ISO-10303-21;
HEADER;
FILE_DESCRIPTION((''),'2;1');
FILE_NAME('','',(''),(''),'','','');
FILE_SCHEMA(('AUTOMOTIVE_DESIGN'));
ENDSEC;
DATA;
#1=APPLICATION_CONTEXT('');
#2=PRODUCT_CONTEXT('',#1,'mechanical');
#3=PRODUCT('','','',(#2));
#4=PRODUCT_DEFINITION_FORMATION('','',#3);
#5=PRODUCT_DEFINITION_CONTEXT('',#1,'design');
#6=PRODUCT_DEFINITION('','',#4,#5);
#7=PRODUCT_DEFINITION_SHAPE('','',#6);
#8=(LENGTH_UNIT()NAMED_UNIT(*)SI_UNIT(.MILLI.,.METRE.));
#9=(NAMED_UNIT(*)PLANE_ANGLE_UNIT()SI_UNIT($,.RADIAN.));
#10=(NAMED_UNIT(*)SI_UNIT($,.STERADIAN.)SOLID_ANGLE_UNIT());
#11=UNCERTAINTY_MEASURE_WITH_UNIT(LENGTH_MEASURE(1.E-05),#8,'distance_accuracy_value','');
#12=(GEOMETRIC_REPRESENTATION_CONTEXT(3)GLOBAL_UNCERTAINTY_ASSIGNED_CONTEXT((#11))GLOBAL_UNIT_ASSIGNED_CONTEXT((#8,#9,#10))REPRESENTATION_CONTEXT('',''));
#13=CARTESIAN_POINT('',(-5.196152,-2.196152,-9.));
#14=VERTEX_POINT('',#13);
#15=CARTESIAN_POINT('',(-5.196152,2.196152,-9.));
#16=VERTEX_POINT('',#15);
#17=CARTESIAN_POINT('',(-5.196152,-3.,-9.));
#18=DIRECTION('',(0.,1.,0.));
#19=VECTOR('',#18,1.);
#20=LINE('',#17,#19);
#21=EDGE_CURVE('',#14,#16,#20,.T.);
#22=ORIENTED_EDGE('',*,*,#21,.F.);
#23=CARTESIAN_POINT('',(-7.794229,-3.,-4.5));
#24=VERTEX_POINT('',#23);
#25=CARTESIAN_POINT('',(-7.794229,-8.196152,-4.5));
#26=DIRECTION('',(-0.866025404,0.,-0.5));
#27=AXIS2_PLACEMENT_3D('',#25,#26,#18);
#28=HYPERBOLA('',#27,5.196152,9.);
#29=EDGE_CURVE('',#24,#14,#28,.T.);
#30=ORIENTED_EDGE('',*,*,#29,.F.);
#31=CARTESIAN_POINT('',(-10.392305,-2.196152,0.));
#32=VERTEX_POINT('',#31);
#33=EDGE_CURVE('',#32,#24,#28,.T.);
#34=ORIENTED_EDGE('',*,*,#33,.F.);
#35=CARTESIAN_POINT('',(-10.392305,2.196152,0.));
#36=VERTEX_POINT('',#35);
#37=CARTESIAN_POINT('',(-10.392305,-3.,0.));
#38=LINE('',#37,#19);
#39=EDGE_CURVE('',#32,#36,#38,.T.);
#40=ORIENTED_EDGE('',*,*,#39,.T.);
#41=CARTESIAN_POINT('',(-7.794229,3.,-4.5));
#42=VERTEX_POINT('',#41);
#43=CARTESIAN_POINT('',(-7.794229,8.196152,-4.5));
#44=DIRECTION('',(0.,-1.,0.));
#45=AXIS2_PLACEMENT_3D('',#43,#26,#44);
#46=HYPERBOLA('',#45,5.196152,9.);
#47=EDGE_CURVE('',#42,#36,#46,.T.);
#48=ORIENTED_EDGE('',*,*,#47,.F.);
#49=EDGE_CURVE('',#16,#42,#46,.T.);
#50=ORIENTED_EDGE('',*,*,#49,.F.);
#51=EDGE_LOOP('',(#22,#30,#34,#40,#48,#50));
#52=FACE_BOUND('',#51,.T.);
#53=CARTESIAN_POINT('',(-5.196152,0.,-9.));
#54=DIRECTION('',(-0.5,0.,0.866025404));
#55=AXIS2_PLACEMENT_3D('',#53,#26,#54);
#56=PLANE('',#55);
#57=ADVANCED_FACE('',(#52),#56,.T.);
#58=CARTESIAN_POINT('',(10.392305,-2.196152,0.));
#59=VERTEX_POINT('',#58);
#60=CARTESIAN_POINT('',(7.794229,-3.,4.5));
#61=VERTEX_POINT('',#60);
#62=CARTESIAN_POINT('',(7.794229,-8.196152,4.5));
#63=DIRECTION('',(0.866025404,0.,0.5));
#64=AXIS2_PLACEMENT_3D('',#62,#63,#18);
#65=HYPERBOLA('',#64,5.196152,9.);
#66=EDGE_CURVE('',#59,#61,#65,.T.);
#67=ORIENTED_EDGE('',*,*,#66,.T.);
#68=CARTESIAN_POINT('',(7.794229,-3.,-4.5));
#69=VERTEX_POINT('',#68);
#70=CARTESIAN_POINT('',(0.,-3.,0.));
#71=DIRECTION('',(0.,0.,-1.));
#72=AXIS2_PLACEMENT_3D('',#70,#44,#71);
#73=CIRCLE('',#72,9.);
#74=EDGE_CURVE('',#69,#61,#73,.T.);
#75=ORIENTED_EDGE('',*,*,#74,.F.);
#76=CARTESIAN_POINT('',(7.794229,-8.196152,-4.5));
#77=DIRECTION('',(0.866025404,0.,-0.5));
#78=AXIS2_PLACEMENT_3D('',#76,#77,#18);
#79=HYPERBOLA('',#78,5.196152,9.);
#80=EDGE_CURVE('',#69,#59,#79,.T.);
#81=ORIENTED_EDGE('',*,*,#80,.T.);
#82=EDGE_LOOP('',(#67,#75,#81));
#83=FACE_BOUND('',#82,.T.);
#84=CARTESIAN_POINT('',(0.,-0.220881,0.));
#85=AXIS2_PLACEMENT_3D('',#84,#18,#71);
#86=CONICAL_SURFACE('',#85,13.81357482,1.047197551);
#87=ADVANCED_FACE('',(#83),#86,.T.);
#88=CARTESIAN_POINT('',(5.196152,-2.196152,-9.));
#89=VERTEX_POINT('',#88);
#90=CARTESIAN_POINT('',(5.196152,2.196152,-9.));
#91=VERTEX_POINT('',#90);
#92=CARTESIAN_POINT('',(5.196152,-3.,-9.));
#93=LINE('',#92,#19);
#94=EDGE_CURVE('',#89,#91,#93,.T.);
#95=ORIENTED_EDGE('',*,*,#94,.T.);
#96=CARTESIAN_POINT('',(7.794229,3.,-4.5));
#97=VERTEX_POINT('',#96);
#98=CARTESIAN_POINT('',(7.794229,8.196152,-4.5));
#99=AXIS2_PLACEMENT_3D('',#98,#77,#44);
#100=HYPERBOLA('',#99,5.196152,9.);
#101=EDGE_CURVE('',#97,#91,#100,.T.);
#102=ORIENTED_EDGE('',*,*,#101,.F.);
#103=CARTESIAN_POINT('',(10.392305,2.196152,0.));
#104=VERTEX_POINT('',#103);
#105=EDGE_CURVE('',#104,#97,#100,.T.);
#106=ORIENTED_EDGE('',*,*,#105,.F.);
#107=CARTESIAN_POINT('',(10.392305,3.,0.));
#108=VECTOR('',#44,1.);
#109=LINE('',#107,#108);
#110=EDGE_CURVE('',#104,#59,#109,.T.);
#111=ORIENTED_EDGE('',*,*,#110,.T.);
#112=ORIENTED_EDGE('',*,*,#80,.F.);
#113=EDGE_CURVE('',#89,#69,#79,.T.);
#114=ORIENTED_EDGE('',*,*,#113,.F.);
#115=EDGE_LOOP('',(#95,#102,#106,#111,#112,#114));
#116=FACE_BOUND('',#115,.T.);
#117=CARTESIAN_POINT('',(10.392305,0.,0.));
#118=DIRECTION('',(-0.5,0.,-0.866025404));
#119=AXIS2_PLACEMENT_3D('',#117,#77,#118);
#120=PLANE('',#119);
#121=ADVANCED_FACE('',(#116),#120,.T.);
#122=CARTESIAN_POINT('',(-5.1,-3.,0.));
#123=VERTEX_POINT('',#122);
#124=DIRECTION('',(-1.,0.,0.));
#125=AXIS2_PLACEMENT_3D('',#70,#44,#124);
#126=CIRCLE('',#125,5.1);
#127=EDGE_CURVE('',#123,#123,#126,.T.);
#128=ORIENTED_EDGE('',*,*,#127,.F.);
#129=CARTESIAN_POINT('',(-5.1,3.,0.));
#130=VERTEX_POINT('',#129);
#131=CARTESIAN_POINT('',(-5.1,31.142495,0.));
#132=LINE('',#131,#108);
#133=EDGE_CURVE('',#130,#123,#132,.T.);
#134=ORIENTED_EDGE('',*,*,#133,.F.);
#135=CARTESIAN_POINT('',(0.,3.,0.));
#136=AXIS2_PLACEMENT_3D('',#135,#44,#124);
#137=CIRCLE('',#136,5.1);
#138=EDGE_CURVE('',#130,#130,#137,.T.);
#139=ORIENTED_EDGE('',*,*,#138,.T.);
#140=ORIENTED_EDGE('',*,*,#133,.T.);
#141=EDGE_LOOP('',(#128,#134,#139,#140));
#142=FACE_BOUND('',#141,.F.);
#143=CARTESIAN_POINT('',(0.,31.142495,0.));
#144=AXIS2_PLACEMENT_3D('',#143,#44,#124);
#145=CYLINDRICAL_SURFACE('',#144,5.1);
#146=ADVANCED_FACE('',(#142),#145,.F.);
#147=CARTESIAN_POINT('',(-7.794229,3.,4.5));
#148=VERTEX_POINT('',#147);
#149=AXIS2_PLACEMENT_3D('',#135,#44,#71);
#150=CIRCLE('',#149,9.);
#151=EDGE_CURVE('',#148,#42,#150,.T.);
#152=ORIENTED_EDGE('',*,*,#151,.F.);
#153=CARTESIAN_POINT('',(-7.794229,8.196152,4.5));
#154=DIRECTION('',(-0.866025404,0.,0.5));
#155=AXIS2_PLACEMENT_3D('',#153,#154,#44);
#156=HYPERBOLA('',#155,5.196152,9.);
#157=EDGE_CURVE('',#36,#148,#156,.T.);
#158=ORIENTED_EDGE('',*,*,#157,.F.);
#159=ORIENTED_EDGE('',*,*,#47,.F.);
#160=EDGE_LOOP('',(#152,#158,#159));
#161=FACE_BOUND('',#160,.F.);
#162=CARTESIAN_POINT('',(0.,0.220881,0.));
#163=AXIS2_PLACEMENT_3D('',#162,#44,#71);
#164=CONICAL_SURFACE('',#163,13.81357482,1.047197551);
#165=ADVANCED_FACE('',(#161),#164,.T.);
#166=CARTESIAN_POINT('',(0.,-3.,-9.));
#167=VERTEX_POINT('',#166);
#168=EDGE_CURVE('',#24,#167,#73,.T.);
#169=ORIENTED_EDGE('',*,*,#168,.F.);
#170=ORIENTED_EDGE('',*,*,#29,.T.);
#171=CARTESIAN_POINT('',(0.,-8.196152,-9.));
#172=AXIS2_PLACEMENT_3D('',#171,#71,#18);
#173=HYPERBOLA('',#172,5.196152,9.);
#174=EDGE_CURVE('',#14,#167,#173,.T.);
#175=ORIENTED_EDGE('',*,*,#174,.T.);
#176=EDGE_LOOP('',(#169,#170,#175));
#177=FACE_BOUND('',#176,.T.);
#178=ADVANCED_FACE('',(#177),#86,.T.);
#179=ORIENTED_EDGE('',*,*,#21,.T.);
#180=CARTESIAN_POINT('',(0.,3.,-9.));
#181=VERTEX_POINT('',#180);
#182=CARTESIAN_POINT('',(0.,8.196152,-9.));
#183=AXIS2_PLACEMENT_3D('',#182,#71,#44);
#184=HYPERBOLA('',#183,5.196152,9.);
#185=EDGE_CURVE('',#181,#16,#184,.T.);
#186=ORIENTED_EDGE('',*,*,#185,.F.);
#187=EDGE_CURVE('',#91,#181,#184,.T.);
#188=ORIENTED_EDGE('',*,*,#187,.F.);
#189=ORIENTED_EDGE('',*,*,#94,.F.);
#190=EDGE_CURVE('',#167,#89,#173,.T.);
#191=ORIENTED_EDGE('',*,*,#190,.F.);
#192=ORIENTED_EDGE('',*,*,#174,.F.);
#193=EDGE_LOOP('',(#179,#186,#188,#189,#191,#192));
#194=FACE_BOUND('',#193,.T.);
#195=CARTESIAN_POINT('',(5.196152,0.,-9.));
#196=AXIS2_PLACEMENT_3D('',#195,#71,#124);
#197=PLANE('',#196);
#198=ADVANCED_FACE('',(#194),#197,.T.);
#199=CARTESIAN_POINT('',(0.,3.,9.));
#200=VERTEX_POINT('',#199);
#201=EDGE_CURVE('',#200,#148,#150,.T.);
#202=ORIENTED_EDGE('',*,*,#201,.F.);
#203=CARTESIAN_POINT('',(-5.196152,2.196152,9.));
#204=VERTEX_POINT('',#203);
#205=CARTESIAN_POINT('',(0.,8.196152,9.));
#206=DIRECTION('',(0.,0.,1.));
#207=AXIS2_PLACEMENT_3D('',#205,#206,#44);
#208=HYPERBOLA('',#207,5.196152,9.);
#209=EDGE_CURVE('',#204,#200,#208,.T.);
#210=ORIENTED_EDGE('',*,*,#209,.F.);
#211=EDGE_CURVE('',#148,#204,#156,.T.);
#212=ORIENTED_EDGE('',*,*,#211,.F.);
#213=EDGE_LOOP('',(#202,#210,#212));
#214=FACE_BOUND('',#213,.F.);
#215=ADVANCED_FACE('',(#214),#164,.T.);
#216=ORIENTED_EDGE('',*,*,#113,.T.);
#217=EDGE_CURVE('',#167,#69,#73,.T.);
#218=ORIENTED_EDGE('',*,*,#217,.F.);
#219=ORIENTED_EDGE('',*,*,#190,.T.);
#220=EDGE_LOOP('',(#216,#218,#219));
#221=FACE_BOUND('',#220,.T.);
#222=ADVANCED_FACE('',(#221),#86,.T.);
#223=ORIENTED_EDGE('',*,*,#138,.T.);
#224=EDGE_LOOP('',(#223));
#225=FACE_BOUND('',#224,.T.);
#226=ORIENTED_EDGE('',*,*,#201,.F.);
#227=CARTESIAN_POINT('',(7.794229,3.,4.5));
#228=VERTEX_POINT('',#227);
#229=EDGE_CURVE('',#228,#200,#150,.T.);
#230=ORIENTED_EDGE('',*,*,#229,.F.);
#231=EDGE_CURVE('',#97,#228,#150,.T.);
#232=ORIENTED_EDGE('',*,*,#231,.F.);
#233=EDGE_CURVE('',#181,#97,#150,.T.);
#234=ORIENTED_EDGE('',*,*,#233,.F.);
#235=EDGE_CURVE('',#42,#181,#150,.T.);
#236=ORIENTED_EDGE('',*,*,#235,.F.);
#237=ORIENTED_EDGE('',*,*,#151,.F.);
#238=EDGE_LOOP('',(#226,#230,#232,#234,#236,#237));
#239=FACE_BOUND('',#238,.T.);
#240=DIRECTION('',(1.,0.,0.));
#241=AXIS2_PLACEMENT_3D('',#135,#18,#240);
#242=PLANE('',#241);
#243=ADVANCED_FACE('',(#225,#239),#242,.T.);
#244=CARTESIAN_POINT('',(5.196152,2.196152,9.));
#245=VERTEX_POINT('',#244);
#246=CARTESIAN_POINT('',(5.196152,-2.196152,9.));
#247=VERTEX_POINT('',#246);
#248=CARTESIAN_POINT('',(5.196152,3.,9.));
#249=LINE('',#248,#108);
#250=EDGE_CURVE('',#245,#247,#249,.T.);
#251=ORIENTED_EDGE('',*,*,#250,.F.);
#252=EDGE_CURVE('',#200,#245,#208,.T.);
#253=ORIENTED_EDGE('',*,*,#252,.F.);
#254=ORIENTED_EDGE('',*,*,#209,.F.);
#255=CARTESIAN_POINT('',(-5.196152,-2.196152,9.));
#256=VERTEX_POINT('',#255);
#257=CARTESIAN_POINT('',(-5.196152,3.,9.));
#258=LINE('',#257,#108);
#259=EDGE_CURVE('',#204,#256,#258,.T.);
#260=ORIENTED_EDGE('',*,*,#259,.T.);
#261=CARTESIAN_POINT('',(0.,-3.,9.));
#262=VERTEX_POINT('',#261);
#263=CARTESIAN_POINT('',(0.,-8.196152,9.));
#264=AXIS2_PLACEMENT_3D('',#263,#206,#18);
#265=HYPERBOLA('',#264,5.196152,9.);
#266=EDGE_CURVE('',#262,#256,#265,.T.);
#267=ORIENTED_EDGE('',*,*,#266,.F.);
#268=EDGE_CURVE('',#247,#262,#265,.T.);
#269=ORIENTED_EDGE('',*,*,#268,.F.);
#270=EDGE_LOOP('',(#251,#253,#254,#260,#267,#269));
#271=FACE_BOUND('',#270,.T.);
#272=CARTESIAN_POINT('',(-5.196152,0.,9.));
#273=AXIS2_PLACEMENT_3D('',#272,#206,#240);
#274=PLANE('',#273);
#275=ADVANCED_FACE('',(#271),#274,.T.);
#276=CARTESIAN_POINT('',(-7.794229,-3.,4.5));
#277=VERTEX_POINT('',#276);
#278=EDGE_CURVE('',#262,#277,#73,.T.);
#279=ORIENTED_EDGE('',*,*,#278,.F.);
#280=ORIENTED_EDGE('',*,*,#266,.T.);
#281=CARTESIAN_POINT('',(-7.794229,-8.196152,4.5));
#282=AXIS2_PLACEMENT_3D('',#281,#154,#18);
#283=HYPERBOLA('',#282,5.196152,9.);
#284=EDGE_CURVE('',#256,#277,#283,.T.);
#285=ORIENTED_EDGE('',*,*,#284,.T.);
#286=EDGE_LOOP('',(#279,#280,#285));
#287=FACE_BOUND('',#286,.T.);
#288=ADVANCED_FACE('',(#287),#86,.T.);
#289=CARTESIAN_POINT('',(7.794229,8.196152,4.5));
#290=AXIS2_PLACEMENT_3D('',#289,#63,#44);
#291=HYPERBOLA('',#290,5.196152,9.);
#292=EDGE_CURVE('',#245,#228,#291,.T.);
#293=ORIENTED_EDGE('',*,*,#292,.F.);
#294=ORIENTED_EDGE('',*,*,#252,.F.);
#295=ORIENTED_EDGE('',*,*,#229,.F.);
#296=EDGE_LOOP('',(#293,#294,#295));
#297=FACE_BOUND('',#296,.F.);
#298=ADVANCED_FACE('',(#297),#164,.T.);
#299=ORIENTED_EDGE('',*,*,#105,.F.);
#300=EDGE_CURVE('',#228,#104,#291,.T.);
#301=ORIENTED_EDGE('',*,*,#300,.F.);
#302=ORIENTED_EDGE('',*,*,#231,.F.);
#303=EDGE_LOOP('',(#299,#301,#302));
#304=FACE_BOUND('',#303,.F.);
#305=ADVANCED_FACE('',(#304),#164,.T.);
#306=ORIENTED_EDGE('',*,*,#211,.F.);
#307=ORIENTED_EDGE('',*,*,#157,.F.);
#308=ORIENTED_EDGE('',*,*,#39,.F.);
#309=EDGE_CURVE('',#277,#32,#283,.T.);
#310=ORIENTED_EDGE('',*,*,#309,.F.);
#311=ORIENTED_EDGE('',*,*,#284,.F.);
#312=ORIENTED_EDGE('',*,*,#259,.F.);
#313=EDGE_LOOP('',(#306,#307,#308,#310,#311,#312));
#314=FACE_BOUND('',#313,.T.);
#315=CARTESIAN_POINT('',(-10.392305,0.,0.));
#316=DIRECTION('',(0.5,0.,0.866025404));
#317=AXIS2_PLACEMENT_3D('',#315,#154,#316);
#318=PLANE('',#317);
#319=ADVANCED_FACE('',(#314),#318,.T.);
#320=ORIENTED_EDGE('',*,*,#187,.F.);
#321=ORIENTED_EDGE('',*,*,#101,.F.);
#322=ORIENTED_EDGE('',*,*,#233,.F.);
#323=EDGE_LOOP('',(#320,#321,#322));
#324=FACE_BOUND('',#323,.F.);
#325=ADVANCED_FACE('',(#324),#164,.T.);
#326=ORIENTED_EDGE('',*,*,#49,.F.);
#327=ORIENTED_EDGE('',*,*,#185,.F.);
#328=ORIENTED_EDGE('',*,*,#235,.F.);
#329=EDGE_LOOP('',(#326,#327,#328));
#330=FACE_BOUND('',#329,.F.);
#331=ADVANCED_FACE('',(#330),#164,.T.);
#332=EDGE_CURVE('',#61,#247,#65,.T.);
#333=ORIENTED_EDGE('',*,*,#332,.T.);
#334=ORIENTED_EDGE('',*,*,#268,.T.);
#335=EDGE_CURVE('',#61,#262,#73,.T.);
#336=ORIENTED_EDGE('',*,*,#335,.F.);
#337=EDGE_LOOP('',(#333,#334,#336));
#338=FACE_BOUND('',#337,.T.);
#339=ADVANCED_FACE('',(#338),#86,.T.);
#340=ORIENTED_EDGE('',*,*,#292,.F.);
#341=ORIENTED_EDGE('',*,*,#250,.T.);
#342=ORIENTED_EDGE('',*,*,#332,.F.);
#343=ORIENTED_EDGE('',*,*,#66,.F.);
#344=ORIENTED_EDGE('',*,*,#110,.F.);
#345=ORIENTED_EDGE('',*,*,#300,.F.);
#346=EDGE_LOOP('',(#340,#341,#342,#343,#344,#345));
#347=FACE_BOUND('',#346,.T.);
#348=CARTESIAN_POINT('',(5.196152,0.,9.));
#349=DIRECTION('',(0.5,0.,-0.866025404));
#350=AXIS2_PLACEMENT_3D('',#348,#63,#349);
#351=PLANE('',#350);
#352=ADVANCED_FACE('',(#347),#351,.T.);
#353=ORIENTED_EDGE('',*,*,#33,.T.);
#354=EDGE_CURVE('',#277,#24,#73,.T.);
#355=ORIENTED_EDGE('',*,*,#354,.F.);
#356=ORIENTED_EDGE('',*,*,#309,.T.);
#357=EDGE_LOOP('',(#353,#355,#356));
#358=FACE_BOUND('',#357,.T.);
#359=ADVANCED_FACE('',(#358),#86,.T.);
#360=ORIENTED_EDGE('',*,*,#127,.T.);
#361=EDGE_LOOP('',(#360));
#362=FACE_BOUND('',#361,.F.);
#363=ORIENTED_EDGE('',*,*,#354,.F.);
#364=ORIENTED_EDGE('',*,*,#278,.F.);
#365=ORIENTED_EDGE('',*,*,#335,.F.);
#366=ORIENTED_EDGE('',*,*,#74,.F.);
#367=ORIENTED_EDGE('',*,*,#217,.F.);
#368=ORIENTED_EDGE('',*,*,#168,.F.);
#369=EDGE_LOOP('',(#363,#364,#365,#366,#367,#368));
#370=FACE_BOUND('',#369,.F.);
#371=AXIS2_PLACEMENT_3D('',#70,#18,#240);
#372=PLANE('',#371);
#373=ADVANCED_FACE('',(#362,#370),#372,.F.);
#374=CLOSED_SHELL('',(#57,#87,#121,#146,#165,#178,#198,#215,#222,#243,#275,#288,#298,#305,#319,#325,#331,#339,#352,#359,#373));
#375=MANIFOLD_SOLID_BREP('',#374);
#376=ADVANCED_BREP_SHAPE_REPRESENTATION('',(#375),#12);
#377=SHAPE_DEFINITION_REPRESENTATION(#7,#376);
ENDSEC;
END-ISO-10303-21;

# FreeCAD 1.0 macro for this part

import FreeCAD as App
import Part
import Sketcher

V = App.Vector
Q = App.Units.Quantity

doc = App.newDocument("Part")
params = doc.addObject("Spreadsheet::Sheet", "Params")
for row, (alias, value) in enumerate([
    ("pad1_length", "6 mm"),
    ("groove_angle", "360 deg"),
    ("sketch3_diameter", "10.2 mm"),
    ("hole_diameter", "10.2 mm"),
], start=1):
    params.set(f"A{row}", alias)
    params.set(f"B{row}", "=" + value)
    params.setAlias(f"B{row}", alias)

body = doc.addObject("PartDesign::Body", "Body")

# Sketch on XZ plane
sketch1 = body.newObject("Sketcher::SketchObject", "Sketch")
sketch1.AttachmentSupport = (doc.getObject("XZ_Plane"), [""])
sketch1.MapMode = "FlatFace"
sketch1.addGeometry([
    Part.LineSegment(V(10, 0, 0), V(5, -9, 0)),  # 0
    Part.LineSegment(V(5, -9, 0), V(-5, -9, 0)),  # 1
    Part.LineSegment(V(-5, -9, 0), V(-10, 0, 0)),  # 2
    Part.LineSegment(V(-10, 0, 0), V(-5, 9, 0)),  # 3
    Part.LineSegment(V(-5, 9, 0), V(5, 9, 0)),  # 4
    Part.LineSegment(V(5, 9, 0), V(10, 0, 0)),  # 5
], False)
sketch1.addConstraint([
    Sketcher.Constraint("Coincident", 0, 2, 1, 1),
    Sketcher.Constraint("Coincident", 1, 2, 2, 1),
    Sketcher.Constraint("Coincident", 2, 2, 3, 1),
    Sketcher.Constraint("Coincident", 3, 2, 4, 1),
    Sketcher.Constraint("Coincident", 4, 2, 5, 1),
    Sketcher.Constraint("Coincident", 5, 2, 0, 1),
    Sketcher.Constraint("Horizontal", 1),
    Sketcher.Constraint("Horizontal", 4),
    Sketcher.Constraint("Symmetric", 0, 2, 3, 2, -1, 1),
    Sketcher.Constraint("Symmetric", 2, 2, 5, 2, -1, 1),
    Sketcher.Constraint("PointOnObject", 2, 2, -1),
    Sketcher.Constraint("Parallel", 2, 5),
    Sketcher.Constraint("Vertical", 1, 2, 3, 2),
    Sketcher.Constraint("Angle", 0, Q("-120 deg")),
    Sketcher.Constraint("DistanceY", 0, 2, -1, 1, 9.0),
    Sketcher.Constraint("DistanceX", 1, 2, 1, 1, 10.392305),
])
pad1 = body.newObject("PartDesign::Pad", "Pad")
pad1.Profile = sketch1
pad1.setExpression("Length", "Params.pad1_length")
pad1.Midplane = True

# Sketch on YZ plane
sketch2 = body.newObject("Sketcher::SketchObject", "Sketch001")
sketch2.AttachmentSupport = (doc.getObject("YZ_Plane"), [""])
sketch2.MapMode = "FlatFace"
sketch2.addGeometry([
    Part.LineSegment(V(3, -13.8, 0), V(3, -9, 0)),
    Part.LineSegment(V(3, -9, 0), V(0.2, -13.8, 0)),
    Part.LineSegment(V(0.2, -13.8, 0), V(3, -13.8, 0)),
], False)
sketch2.addConstraint([
    Sketcher.Constraint("Coincident", 0, 2, 1, 1),
    Sketcher.Constraint("Coincident", 1, 2, 2, 1),
    Sketcher.Constraint("Coincident", 2, 2, 0, 1),
    Sketcher.Constraint("Vertical", 0),
    Sketcher.Constraint("Horizontal", 2),
    Sketcher.Constraint("Angle", 1, Q("-120 deg")),
    Sketcher.Constraint("DistanceX", -1, 1, 0, 2, 3.0),
    Sketcher.Constraint("DistanceY", 0, 2, -1, 1, 9.0),
    Sketcher.Constraint("DistanceX", 2, 1, 2, 2, 2.779119),
])
groove = body.newObject("PartDesign::Groove", "Groove")
groove.Profile = sketch2
groove.ReferenceAxis = (sketch2, ["H_Axis"])
groove.setExpression("Angle", "Params.groove_angle")
doc.recompute()

mirrored = body.newObject("PartDesign::Mirrored", "Mirrored")
mirrored.Originals = [groove]
mirrored.MirrorPlane = (doc.getObject("XZ_Plane"), [""])
body.Tip = mirrored

# Sketch on XZ plane
sketch3 = body.newObject("Sketcher::SketchObject", "Sketch002")
sketch3.AttachmentSupport = (doc.getObject("XZ_Plane"), [""])
sketch3.MapMode = "FlatFace"
sketch3.AttachmentOffset = App.Placement(V(0, 0, -3), App.Rotation())
sketch3.addGeometry(Part.Circle(V(0, 0, 0), V(0, 0, 1), 5), False)
sketch3.addConstraint([
    Sketcher.Constraint("Coincident", 0, 3, -1, 1),
    Sketcher.Constraint("Diameter", 0, 10.2),
])
sketch3.setExpression("Constraints[1]", "Params.sketch3_diameter")
doc.recompute()
hole = body.newObject("PartDesign::Hole", "Hole")
hole.Profile = sketch3
hole.ThreadType = "None"
hole.setExpression("Diameter", "Params.hole_diameter")
hole.DepthType = "ThroughAll"
hole.Reversed = True

doc.recompute()
